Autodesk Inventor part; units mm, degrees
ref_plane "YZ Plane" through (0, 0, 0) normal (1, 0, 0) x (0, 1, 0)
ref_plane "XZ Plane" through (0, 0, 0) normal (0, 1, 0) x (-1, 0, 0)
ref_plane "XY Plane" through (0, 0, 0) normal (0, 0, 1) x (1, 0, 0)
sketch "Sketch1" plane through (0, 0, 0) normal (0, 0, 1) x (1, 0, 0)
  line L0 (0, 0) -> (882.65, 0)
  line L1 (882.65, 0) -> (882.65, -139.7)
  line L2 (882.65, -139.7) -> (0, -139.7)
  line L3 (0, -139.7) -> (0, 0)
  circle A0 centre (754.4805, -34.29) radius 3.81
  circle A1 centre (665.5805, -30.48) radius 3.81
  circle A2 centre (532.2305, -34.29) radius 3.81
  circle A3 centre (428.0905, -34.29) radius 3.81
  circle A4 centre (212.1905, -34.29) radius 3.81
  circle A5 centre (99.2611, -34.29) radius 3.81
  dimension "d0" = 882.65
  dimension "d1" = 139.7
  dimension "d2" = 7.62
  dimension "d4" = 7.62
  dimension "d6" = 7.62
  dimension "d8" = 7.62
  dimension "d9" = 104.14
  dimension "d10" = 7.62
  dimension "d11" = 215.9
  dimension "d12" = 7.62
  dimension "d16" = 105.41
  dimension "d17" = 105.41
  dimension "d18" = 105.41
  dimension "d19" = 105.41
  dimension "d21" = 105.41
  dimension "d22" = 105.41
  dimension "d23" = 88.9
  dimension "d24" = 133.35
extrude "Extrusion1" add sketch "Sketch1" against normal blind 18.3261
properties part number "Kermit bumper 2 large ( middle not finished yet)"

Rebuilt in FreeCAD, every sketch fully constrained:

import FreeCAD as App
import Part
import Sketcher
Q = App.Units.Quantity


def add_polygon(sketch, points):
    """Adds a closed chain of lines whose ends are joined by coincident constraints."""
    first, n = sketch.GeometryCount, len(points)
    for a, b in zip(points, points[1:] + points[:1]):
        sketch.addGeometry(Part.LineSegment(App.Vector(*a, 0), App.Vector(*b, 0)), False)
    for i in range(n):
        sketch.addConstraint(Sketcher.Constraint("Coincident", first + i, 2, first + (i + 1) % n, 1))

doc = App.newDocument("Part")
body = doc.addObject("PartDesign::Body", "Body")

# Sketch on XY plane
sketch1 = doc.addObject("Sketcher::SketchObject", "Sketch")
body.addObject(sketch1)
sketch1.AttachmentSupport = (doc.XY_Plane, [""])
sketch1.MapMode = "FlatFace"
add_polygon(sketch1, [(882.6, 0), (0, 0), (0, -139.7), (882.6, -139.7)])  # lines 0-3
sketch1.addGeometry(Part.Circle(App.Vector(99.3, -34.3, 0), App.Vector(0, 0, 1), 3.8), False)  # 4
sketch1.addGeometry(Part.Circle(App.Vector(212.2, -34.3, 0), App.Vector(0, 0, 1), 3.8), False)  # 5
sketch1.addGeometry(Part.Circle(App.Vector(428.1, -34.3, 0), App.Vector(0, 0, 1), 3.8), False)  # 6
sketch1.addGeometry(Part.Circle(App.Vector(532.2, -34.3, 0), App.Vector(0, 0, 1), 3.8), False)  # 7
sketch1.addGeometry(Part.Circle(App.Vector(665.6, -30.5, 0), App.Vector(0, 0, 1), 3.8), False)  # 8
sketch1.addGeometry(Part.Circle(App.Vector(754.5, -34.3, 0), App.Vector(0, 0, 1), 3.8), False)  # 9
sketch1.addConstraint(Sketcher.Constraint("Horizontal", 0))
sketch1.addConstraint(Sketcher.Constraint("Vertical", 1))
sketch1.addConstraint(Sketcher.Constraint("Horizontal", 2))
sketch1.addConstraint(Sketcher.Constraint("Vertical", 3))
sketch1.addConstraint(Sketcher.Constraint("Coincident", 0, 2, -1, 1))
sketch1.addConstraint(Sketcher.Constraint("Equal", 4, 5))
sketch1.addConstraint(Sketcher.Constraint("Equal", 5, 6))
sketch1.addConstraint(Sketcher.Constraint("Equal", 6, 7))
sketch1.addConstraint(Sketcher.Constraint("Equal", 7, 8))
sketch1.addConstraint(Sketcher.Constraint("Equal", 8, 9))
sketch1.addConstraint(Sketcher.Constraint("Horizontal", 4, 3, 5, 3))
sketch1.addConstraint(Sketcher.Constraint("Horizontal", 5, 3, 6, 3))
sketch1.addConstraint(Sketcher.Constraint("Horizontal", 6, 3, 7, 3))
sketch1.addConstraint(Sketcher.Constraint("Horizontal", 7, 3, 9, 3))
sketch1.addConstraint(Sketcher.Constraint("Diameter", 4, Q("0.3 in")))
sketch1.addConstraint(Sketcher.Constraint("DistanceY", 1, 2, 1, 1, Q("5.5 in")))
sketch1.addConstraint(Sketcher.Constraint("DistanceX", 0, 2, 0, 1, Q("34.75 in")))
sketch1.addConstraint(Sketcher.Constraint("DistanceX", 5, 3, 6, 3, Q("8.5 in")))
sketch1.addConstraint(Sketcher.Constraint("DistanceX", 6, 3, 7, 3, Q("4.1 in")))
sketch1.addConstraint(Sketcher.Constraint("DistanceX", 8, 3, 9, 3, Q("3.5 in")))
sketch1.addConstraint(Sketcher.Constraint("DistanceX", 7, 3, 8, 3, Q("5.25 in")))
sketch1.addConstraint(Sketcher.Constraint("DistanceY", 1, 2, 4, 3, Q("4.15 in")))
sketch1.addConstraint(Sketcher.Constraint("DistanceY", 8, 3, -1, 1, Q("1.2 in")))
sketch1.addConstraint(Sketcher.Constraint("DistanceX", -1, 1, 4, 3, Q("99.261 mm")))
sketch1.addConstraint(Sketcher.Constraint("DistanceX", -1, 1, 5, 3, Q("212.1905 mm")))
pad1 = doc.addObject("PartDesign::Pad", "Pad")
body.addObject(pad1)
pad1.Profile = sketch1
pad1.Length = Q("0.7215 in")
pad1.Reversed = True

doc.recompute()
